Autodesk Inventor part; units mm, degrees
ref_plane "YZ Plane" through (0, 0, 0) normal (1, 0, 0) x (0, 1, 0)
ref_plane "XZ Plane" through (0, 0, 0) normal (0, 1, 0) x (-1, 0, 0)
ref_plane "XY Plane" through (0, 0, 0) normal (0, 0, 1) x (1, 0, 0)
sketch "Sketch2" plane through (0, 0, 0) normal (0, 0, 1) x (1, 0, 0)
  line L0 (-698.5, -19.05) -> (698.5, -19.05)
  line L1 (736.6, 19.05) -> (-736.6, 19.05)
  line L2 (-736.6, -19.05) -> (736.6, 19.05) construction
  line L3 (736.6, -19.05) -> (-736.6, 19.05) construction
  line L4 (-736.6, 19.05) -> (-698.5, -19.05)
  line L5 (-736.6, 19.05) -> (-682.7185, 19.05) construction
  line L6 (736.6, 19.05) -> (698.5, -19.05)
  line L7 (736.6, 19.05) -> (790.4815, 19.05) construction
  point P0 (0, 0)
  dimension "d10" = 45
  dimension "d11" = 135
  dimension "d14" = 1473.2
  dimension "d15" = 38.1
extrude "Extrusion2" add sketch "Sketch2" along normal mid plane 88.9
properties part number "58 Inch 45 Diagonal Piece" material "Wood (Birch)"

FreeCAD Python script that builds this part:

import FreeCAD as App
import Part
import Sketcher
from FreeCAD import Vector
Q = App.Units.Quantity


def add_polygon(sketch, points):
    """Adds a closed chain of lines whose ends are joined by coincident constraints."""
    first, n = sketch.GeometryCount, len(points)
    for a, b in zip(points, points[1:] + points[:1]):
        sketch.addGeometry(Part.LineSegment(App.Vector(*a, 0), App.Vector(*b, 0)), False)
    for i in range(n):
        sketch.addConstraint(Sketcher.Constraint("Coincident", first + i, 2, first + (i + 1) % n, 1))

doc = App.newDocument("Part")
body = doc.addObject("PartDesign::Body", "Body")

# Sketch on XY plane
sketch1 = body.newObject("Sketcher::SketchObject", "Sketch")
sketch1.AttachmentSupport = (doc.getObject("XY_Plane"), [""])
sketch1.MapMode = "FlatFace"
add_polygon(sketch1, [(-737, 19), (-698, -19), (698, -19), (737, 19)])  # lines 0-3
sketch1.addConstraint(Sketcher.Constraint("Horizontal", 1))
sketch1.addConstraint(Sketcher.Constraint("Horizontal", 3))
sketch1.addConstraint(Sketcher.Constraint("Perpendicular", 0, 2))
sketch1.addConstraint(Sketcher.Constraint("Equal", 0, 2))
sketch1.addConstraint(Sketcher.Constraint("DistanceX", 3, 2, 3, 1, Q("58 in")))
sketch1.addConstraint(Sketcher.Constraint("DistanceX", 1, 2, 2, 2, Q("1.5 in")))
sketch1.addConstraint(Sketcher.Constraint("DistanceX", -1, 1, 2, 2, Q("29 in")))
sketch1.addConstraint(Sketcher.Constraint("DistanceY", 0, 2, -1, 1, Q("0.75 in")))
pad1 = body.newObject("PartDesign::Pad", "Pad")
pad1.Profile = sketch1
pad1.Length = Q("3.5 in")
pad1.Midplane = True

doc.recompute()
